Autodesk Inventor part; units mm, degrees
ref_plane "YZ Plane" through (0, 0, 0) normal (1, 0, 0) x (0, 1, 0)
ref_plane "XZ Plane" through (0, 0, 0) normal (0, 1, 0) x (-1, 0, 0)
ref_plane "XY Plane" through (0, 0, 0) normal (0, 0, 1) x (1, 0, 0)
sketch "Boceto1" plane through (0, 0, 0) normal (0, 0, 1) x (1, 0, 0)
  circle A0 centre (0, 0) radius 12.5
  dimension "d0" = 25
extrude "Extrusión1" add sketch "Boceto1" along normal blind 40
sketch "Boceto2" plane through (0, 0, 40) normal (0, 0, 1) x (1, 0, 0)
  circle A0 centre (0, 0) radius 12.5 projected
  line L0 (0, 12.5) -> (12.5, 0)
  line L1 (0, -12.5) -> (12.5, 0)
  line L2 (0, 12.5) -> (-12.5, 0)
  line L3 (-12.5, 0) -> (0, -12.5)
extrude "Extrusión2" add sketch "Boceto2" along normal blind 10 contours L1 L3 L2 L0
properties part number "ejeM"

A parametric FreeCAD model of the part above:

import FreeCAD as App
import Part
import Sketcher
from FreeCAD import Vector

doc = App.newDocument("Part")
params = doc.addObject("Spreadsheet::Sheet", "Params")
for row, (alias, value) in enumerate([
    ("sketch1_diameter", "25 mm"),
    ("pad1_length", "40 mm"),
    ("pad2_length", "10 mm"),
], start=1):
    params.set(f"A{row}", alias)
    params.set(f"B{row}", "=" + value)
    params.setAlias(f"B{row}", alias)

body = doc.addObject("PartDesign::Body", "Body")

sketch1 = body.newObject("Sketcher::SketchObject", "Sketch")
sketch1.AttachmentSupport = (doc.getObject("XY_Plane"), [""])
sketch1.MapMode = "FlatFace"
sketch1.addGeometry(Part.Circle(Vector(0, 0, 0), Vector(0, 0, 1), 12.5), False)
sketch1.addConstraint(Sketcher.Constraint("Coincident", 0, 3, -1, 1))
sketch1.addConstraint(Sketcher.Constraint("Diameter", 0, 25.0))
sketch1.setExpression("Constraints[1]", "Params.sketch1_diameter")
pad1 = body.newObject("PartDesign::Pad", "Pad")
pad1.Profile = sketch1
pad1.setExpression("Length", "Params.pad1_length")

sketch2 = body.newObject("Sketcher::SketchObject", "Sketch001")
sketch2.AttachmentSupport = (doc.getObject("XY_Plane"), [""])
sketch2.MapMode = "FlatFace"
sketch2.AttachmentOffset = App.Placement(Vector(0, 0, 40), App.Rotation())
sketch2.addGeometry(Part.LineSegment(Vector(0, -12.5, 0), Vector(12.5, 0, 0)), False)
sketch2.addGeometry(Part.LineSegment(Vector(12.5, 0, 0), Vector(0, 12.5, 0)), False)
sketch2.addGeometry(Part.LineSegment(Vector(0, 12.5, 0), Vector(-12.5, 0, 0)), False)
sketch2.addGeometry(Part.LineSegment(Vector(-12.5, 0, 0), Vector(0, -12.5, 0)), False)
sketch2.addConstraint(Sketcher.Constraint("Coincident", 0, 2, 1, 1))
sketch2.addConstraint(Sketcher.Constraint("Coincident", 1, 2, 2, 1))
sketch2.addConstraint(Sketcher.Constraint("Coincident", 2, 2, 3, 1))
sketch2.addConstraint(Sketcher.Constraint("Coincident", 3, 2, 0, 1))
sketch2.addConstraint(Sketcher.Constraint("Symmetric", 0, 2, 2, 2, -1, 1))
sketch2.addConstraint(Sketcher.Constraint("Symmetric", 1, 2, 3, 2, -1, 1))
sketch2.addConstraint(Sketcher.Constraint("PointOnObject", 0, 2, -1))
sketch2.addConstraint(Sketcher.Constraint("PointOnObject", 1, 2, -2))
sketch2.addConstraint(Sketcher.Constraint("Perpendicular", 0, 1))
sketch2.addConstraint(Sketcher.Constraint("DistanceX", 2, 2, 0, 2, 25.0))
pad2 = body.newObject("PartDesign::Pad", "Pad001")
pad2.Profile = sketch2
pad2.setExpression("Length", "Params.pad2_length")

doc.recompute()
